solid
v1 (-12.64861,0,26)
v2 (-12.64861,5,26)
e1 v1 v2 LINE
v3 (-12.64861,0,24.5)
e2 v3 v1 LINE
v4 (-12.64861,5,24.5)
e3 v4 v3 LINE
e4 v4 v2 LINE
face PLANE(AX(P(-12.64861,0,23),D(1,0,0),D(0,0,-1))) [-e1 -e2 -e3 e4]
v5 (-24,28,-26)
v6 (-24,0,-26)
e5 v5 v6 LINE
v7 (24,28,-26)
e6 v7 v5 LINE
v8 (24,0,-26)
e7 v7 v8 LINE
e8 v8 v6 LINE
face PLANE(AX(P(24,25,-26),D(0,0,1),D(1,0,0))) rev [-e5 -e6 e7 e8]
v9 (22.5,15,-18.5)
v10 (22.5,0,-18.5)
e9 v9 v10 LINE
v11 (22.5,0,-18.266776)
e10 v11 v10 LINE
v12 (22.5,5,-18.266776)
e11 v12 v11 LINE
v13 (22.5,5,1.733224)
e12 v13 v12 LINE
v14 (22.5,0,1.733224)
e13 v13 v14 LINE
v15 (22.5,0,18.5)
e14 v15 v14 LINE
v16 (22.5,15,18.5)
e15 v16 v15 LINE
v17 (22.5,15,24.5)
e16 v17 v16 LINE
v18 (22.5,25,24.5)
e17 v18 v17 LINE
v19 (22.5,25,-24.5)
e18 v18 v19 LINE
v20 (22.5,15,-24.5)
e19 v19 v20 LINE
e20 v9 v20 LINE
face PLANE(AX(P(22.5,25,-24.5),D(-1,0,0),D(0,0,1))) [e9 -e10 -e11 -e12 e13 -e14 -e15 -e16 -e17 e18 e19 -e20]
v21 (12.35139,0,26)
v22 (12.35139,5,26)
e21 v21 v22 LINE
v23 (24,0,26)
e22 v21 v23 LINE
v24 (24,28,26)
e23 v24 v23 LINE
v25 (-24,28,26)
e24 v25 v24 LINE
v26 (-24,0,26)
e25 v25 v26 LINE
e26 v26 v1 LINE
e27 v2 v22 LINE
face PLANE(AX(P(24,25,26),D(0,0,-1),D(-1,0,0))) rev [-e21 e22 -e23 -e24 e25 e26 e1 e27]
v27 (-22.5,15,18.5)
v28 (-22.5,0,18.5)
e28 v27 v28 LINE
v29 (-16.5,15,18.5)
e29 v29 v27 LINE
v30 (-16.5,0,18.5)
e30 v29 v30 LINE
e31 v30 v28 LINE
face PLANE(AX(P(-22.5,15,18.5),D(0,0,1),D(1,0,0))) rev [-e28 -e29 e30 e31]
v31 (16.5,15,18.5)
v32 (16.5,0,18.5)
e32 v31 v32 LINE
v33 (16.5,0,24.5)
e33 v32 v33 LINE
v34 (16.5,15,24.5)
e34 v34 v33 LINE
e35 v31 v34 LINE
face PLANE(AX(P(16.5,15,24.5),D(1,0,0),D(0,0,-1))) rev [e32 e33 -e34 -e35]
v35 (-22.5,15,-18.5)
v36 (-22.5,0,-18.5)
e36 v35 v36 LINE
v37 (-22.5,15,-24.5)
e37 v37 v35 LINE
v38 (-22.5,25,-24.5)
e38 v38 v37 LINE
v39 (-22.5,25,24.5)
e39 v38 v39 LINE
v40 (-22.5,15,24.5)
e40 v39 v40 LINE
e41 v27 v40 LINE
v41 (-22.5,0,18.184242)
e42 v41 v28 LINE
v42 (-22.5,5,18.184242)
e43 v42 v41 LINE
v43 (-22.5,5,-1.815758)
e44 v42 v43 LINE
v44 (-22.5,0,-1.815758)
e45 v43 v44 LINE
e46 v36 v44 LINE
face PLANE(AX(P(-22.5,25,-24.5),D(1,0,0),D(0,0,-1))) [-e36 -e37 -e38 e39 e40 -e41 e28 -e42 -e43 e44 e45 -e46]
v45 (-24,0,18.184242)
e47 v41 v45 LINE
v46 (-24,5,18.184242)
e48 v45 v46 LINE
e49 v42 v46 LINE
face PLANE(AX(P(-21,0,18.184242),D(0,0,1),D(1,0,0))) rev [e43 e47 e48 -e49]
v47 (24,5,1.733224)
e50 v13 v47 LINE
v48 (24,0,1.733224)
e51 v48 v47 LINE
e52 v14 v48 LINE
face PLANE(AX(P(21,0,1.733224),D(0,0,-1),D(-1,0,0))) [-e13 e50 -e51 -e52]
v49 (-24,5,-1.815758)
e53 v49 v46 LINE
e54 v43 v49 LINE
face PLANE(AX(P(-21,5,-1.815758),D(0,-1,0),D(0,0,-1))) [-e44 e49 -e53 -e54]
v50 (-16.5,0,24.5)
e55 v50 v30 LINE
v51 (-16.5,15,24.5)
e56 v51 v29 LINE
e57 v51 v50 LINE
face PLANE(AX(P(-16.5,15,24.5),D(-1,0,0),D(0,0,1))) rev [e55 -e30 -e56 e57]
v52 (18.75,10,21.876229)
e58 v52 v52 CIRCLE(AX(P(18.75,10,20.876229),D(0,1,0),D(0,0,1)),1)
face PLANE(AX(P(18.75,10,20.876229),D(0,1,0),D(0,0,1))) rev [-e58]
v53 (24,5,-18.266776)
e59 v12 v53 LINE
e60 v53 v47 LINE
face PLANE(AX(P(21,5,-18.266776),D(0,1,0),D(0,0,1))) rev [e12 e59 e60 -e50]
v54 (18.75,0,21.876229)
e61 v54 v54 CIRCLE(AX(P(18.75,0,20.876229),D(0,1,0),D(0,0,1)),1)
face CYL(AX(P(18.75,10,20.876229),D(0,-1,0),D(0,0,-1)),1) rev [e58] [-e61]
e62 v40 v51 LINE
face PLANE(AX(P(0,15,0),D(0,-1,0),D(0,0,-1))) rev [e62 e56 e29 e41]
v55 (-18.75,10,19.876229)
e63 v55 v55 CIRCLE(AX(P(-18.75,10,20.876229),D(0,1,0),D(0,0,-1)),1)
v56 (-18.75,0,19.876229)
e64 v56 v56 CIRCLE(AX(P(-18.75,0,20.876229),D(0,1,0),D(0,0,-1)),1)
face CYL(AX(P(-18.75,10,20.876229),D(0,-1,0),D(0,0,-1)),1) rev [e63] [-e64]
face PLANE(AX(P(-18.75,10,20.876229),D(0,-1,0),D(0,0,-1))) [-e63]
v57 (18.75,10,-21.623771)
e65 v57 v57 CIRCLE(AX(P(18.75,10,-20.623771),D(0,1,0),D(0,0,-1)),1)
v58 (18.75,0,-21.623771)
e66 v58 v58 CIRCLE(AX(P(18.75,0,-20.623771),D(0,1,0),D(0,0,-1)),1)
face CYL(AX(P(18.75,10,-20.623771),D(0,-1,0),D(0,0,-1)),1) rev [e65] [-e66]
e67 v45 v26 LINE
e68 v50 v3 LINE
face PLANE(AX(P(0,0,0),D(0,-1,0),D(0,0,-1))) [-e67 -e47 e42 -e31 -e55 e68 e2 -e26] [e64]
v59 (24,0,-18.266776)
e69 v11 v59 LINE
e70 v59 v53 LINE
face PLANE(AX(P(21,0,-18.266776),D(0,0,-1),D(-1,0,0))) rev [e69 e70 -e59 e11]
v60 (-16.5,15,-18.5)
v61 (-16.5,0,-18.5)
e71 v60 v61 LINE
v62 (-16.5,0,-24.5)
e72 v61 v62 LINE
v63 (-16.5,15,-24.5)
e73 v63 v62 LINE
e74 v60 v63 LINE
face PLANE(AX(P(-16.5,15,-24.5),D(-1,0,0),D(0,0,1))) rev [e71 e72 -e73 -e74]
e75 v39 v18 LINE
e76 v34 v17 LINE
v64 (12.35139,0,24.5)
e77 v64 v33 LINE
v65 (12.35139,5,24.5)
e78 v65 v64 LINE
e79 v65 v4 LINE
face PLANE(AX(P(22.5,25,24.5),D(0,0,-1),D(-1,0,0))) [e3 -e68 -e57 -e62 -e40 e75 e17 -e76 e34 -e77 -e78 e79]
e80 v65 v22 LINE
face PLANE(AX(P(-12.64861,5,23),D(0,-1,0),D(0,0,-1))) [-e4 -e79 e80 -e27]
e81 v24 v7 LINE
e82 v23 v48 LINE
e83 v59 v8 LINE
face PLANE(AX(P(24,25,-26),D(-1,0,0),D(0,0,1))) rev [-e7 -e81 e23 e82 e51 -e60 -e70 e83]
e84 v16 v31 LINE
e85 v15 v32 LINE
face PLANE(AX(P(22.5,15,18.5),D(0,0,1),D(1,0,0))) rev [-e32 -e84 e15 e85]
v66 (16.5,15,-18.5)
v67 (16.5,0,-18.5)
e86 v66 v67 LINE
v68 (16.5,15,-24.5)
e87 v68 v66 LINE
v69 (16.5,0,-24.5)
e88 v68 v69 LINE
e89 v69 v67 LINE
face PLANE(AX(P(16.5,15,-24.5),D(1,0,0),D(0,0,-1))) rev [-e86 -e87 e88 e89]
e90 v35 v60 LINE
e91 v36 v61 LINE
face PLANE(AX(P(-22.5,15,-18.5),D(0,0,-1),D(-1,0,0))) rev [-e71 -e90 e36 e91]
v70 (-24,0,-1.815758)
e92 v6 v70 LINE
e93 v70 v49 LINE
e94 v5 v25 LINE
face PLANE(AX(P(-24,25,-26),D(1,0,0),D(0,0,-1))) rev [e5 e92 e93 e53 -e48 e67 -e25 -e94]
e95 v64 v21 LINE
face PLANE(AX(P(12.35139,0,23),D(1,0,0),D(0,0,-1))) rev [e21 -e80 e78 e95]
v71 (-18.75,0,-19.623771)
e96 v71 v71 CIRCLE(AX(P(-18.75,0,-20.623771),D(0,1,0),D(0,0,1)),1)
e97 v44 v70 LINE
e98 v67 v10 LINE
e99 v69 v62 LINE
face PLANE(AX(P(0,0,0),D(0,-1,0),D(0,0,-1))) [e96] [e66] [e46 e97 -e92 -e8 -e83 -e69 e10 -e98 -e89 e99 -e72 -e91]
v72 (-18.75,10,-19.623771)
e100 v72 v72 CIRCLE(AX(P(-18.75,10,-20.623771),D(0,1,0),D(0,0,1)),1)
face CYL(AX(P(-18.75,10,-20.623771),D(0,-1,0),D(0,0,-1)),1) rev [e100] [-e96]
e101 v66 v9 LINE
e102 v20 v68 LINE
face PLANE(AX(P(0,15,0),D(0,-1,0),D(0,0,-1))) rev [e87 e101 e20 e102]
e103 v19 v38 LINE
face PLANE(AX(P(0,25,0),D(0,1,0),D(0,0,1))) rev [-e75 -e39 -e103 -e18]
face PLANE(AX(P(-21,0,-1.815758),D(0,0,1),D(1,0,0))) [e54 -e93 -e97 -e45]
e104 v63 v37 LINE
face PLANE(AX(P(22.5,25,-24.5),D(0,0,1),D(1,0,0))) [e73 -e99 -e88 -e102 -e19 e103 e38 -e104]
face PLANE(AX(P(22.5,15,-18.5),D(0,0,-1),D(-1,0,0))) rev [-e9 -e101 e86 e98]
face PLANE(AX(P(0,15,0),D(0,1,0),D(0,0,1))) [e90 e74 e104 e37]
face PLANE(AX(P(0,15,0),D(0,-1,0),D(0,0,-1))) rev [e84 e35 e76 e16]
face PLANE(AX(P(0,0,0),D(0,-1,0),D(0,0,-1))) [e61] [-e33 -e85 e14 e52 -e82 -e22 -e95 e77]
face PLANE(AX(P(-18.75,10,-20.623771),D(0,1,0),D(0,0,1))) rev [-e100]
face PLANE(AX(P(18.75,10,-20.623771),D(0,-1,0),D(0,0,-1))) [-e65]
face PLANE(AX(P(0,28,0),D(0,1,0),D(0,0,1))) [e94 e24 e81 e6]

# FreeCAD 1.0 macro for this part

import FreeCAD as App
import Part
import Sketcher

V = App.Vector


def add_polygon(sketch, points):
    """Adds a closed chain of lines whose ends are joined by coincident constraints."""
    first, n = sketch.GeometryCount, len(points)
    for a, b in zip(points, points[1:] + points[:1]):
        sketch.addGeometry(Part.LineSegment(App.Vector(*a, 0), App.Vector(*b, 0)), False)
    for i in range(n):
        sketch.addConstraint(Sketcher.Constraint("Coincident", first + i, 2, first + (i + 1) % n, 1))

doc = App.newDocument("Part")
body = doc.addObject("PartDesign::Body", "Body")

# Sketch on XZ plane
sketch1 = doc.addObject("Sketcher::SketchObject", "Sketch")
body.addObject(sketch1)
sketch1.AttachmentSupport = (doc.XZ_Plane, [""])
sketch1.MapMode = "FlatFace"
add_polygon(sketch1, [(-24, -26), (-24, 26), (24, 26), (24, -26)])  # lines 0-3
add_polygon(sketch1, [(22.5, 24.5), (-22.5, 24.5), (-22.5, -24.5), (22.5, -24.5)])  # lines 4-7
sketch1.addConstraint([
    Sketcher.Constraint("Vertical", 0),
    Sketcher.Constraint("Horizontal", 1),
    Sketcher.Constraint("Vertical", 2),
    Sketcher.Constraint("Horizontal", 3),
    Sketcher.Constraint("Horizontal", 4),
    Sketcher.Constraint("Vertical", 5),
    Sketcher.Constraint("Horizontal", 6),
    Sketcher.Constraint("Vertical", 7),
    Sketcher.Constraint("Symmetric", 0, 2, 2, 2, -1, 1),
    Sketcher.Constraint("Symmetric", 4, 2, 6, 2, -1, 1),
    Sketcher.Constraint("DistanceX", 1, 1, 1, 2, 48.0),
    Sketcher.Constraint("DistanceX", 4, 2, 4, 1, 45.0),
    Sketcher.Constraint("DistanceY", 0, 1, 0, 2, 52.0),
    Sketcher.Constraint("DistanceY", 5, 2, 5, 1, 49.0),
])
pad1 = doc.addObject("PartDesign::Pad", "Pad")
body.addObject(pad1)
pad1.Profile = sketch1
pad1.Length = 25
pad1.Reversed = True

# Sketch on XZ plane
sketch2 = doc.addObject("Sketcher::SketchObject", "Sketch001")
body.addObject(sketch2)
sketch2.AttachmentSupport = (doc.XZ_Plane, [""])
sketch2.MapMode = "FlatFace"
add_polygon(sketch2, [(-22.5, -24.5), (-22.5, -18.5), (-16.5, -18.5), (-16.5, -24.5)])  # lines 0-3
add_polygon(sketch2, [(16.5, -24.5), (16.5, -18.5), (22.5, -18.5), (22.5, -24.5)])  # lines 4-7
add_polygon(sketch2, [(16.5, 18.5), (16.5, 24.5), (22.5, 24.5), (22.5, 18.5)])  # lines 8-11
add_polygon(sketch2, [(-22.5, 18.5), (-22.5, 24.5), (-16.5, 24.5), (-16.5, 18.5)])  # lines 12-15
sketch2.addConstraint([
    Sketcher.Constraint("Vertical", 0),
    Sketcher.Constraint("Horizontal", 1),
    Sketcher.Constraint("Vertical", 2),
    Sketcher.Constraint("Horizontal", 3),
    Sketcher.Constraint("Vertical", 4),
    Sketcher.Constraint("Horizontal", 5),
    Sketcher.Constraint("Vertical", 6),
    Sketcher.Constraint("Horizontal", 7),
    Sketcher.Constraint("Vertical", 8),
    Sketcher.Constraint("Horizontal", 9),
    Sketcher.Constraint("Vertical", 10),
    Sketcher.Constraint("Horizontal", 11),
    Sketcher.Constraint("Vertical", 12),
    Sketcher.Constraint("Horizontal", 13),
    Sketcher.Constraint("Vertical", 14),
    Sketcher.Constraint("Horizontal", 15),
    Sketcher.Constraint("Symmetric", 2, 2, 8, 2, -1, 1),
    Sketcher.Constraint("Symmetric", 0, 2, 10, 2, -1, 1),
    Sketcher.Constraint("Symmetric", 6, 2, 12, 2, -1, 1),
    Sketcher.Constraint("Symmetric", 4, 2, 14, 2, -1, 1),
    Sketcher.Constraint("Symmetric", 1, 2, 4, 2, -2),
    Sketcher.Constraint("Symmetric", 3, 2, 6, 2, -2),
    Sketcher.Constraint("Equal", 15, 0),
    Sketcher.Constraint("DistanceX", 1, 1, 1, 2, 6.0),
    Sketcher.Constraint("DistanceX", 1, 2, 4, 2, 33.0),
    Sketcher.Constraint("DistanceY", 4, 2, 8, 2, 43.0),
])
pad2 = doc.addObject("PartDesign::Pad", "Pad001")
body.addObject(pad2)
pad2.Profile = sketch2
pad2.Length = 15
pad2.Reversed = True

# Sketch on XZ plane
sketch3 = doc.addObject("Sketcher::SketchObject", "Sketch002")
body.addObject(sketch3)
sketch3.AttachmentSupport = (doc.XZ_Plane, [""])
sketch3.MapMode = "FlatFace"
sketch3.addGeometry([
    Part.Circle(V(-18.75, -20.623771, 0), V(0, 0, 1), 1),
    Part.Circle(V(18.75, -20.623771, 0), V(0, 0, 1), 1),
    Part.Circle(V(18.75, 20.876229, 0), V(0, 0, 1), 1),
    Part.Circle(V(-18.75, 20.876229, 0), V(0, 0, 1), 1),
], False)
sketch3.addConstraint([
    Sketcher.Constraint("Equal", 0, 1),
    Sketcher.Constraint("Equal", 1, 2),
    Sketcher.Constraint("Equal", 2, 3),
    Sketcher.Constraint("Symmetric", 0, 3, 1, 3, -2),
    Sketcher.Constraint("Symmetric", 2, 3, 3, 3, -2),
    Sketcher.Constraint("Vertical", 1, 3, 2, 3),
    Sketcher.Constraint("Diameter", 0, 2.0),
    Sketcher.Constraint("DistanceX", 0, 3, 1, 3, 37.5),
    Sketcher.Constraint("DistanceY", 1, 3, 2, 3, 41.5),
    Sketcher.Constraint("DistanceY", 0, 3, -1, 1, 20.623771),
])
pocket1 = doc.addObject("PartDesign::Pocket", "Pocket")
body.addObject(pocket1)
pocket1.Profile = sketch3
pocket1.Length = 10

# Sketch on XZ plane
sketch4 = doc.addObject("Sketcher::SketchObject", "Sketch003")
body.addObject(sketch4)
sketch4.AttachmentSupport = (doc.XZ_Plane, [""])
sketch4.MapMode = "FlatFace"
sketch4.AttachmentOffset = App.Placement(V(0, 0, -25), App.Rotation())
add_polygon(sketch4, [(-24, -26), (-24, 26), (24, 26), (24, -26)])  # lines 0-3
sketch4.addConstraint([
    Sketcher.Constraint("Vertical", 0),
    Sketcher.Constraint("Horizontal", 1),
    Sketcher.Constraint("Vertical", 2),
    Sketcher.Constraint("Horizontal", 3),
    Sketcher.Constraint("Symmetric", 0, 2, 2, 2, -1, 1),
    Sketcher.Constraint("DistanceX", 1, 1, 1, 2, 48.0),
    Sketcher.Constraint("DistanceY", 0, 1, 0, 2, 52.0),
])
pad3 = doc.addObject("PartDesign::Pad", "Pad002")
body.addObject(pad3)
pad3.Profile = sketch4
pad3.Length = 3
pad3.Reversed = True

# Sketch on XY plane
sketch5 = doc.addObject("Sketcher::SketchObject", "Sketch004")
body.addObject(sketch5)
sketch5.AttachmentSupport = (doc.XY_Plane, [""])
sketch5.MapMode = "FlatFace"
sketch5.AttachmentOffset = App.Placement(V(0, 0, 26), App.Rotation())
add_polygon(sketch5, [(-12.64861, 5), (-12.64861, 0), (12.35139, 0), (12.35139, 5)])  # lines 0-3
sketch5.addConstraint([
    Sketcher.Constraint("Vertical", 0),
    Sketcher.Constraint("Horizontal", 1),
    Sketcher.Constraint("Vertical", 2),
    Sketcher.Constraint("Horizontal", 3),
    Sketcher.Constraint("PointOnObject", 0, 2, -1),
    Sketcher.Constraint("DistanceX", 1, 1, 1, 2, 25.0),
    Sketcher.Constraint("DistanceY", 0, 2, 0, 1, 5.0),
    Sketcher.Constraint("DistanceX", 0, 2, -1, 1, 12.64861),
])
pocket2 = doc.addObject("PartDesign::Pocket", "Pocket001")
body.addObject(pocket2)
pocket2.Profile = sketch5
pocket2.Length = 3

# Sketch on YZ plane
sketch6 = doc.addObject("Sketcher::SketchObject", "Sketch005")
body.addObject(sketch6)
sketch6.AttachmentSupport = (doc.YZ_Plane, [""])
sketch6.MapMode = "FlatFace"
sketch6.AttachmentOffset = App.Placement(V(0, 0, 24), App.Rotation())
add_polygon(sketch6, [(5, 1.733224), (0, 1.733224), (0, -18.266776), (5, -18.266776)])  # lines 0-3
sketch6.addConstraint([
    Sketcher.Constraint("Horizontal", 0),
    Sketcher.Constraint("Vertical", 1),
    Sketcher.Constraint("Horizontal", 2),
    Sketcher.Constraint("Vertical", 3),
    Sketcher.Constraint("PointOnObject", 0, 2, -2),
    Sketcher.Constraint("DistanceX", 0, 2, 0, 1, 5.0),
    Sketcher.Constraint("DistanceY", 1, 2, 1, 1, 20.0),
    Sketcher.Constraint("DistanceY", -1, 1, 0, 2, 1.733224),
])
pocket3 = doc.addObject("PartDesign::Pocket", "Pocket002")
body.addObject(pocket3)
pocket3.Profile = sketch6
pocket3.Length = 3

# Sketch on YZ plane
sketch7 = doc.addObject("Sketcher::SketchObject", "Sketch006")
body.addObject(sketch7)
sketch7.AttachmentSupport = (doc.YZ_Plane, [""])
sketch7.MapMode = "FlatFace"
sketch7.AttachmentOffset = App.Placement(V(0, 0, -24), App.Rotation())
add_polygon(sketch7, [(5, -1.815758), (0, -1.815758), (0, 18.184242), (5, 18.184242)])  # lines 0-3
sketch7.addConstraint([
    Sketcher.Constraint("Horizontal", 0),
    Sketcher.Constraint("Vertical", 1),
    Sketcher.Constraint("Horizontal", 2),
    Sketcher.Constraint("Vertical", 3),
    Sketcher.Constraint("PointOnObject", 0, 2, -2),
    Sketcher.Constraint("DistanceX", 0, 2, 0, 1, 5.0),
    Sketcher.Constraint("DistanceY", 1, 1, 1, 2, 20.0),
    Sketcher.Constraint("DistanceY", 0, 2, -1, 1, 1.815758),
])
pocket4 = doc.addObject("PartDesign::Pocket", "Pocket003")
body.addObject(pocket4)
pocket4.Profile = sketch7
pocket4.Length = 3
pocket4.Reversed = True

doc.recompute()
